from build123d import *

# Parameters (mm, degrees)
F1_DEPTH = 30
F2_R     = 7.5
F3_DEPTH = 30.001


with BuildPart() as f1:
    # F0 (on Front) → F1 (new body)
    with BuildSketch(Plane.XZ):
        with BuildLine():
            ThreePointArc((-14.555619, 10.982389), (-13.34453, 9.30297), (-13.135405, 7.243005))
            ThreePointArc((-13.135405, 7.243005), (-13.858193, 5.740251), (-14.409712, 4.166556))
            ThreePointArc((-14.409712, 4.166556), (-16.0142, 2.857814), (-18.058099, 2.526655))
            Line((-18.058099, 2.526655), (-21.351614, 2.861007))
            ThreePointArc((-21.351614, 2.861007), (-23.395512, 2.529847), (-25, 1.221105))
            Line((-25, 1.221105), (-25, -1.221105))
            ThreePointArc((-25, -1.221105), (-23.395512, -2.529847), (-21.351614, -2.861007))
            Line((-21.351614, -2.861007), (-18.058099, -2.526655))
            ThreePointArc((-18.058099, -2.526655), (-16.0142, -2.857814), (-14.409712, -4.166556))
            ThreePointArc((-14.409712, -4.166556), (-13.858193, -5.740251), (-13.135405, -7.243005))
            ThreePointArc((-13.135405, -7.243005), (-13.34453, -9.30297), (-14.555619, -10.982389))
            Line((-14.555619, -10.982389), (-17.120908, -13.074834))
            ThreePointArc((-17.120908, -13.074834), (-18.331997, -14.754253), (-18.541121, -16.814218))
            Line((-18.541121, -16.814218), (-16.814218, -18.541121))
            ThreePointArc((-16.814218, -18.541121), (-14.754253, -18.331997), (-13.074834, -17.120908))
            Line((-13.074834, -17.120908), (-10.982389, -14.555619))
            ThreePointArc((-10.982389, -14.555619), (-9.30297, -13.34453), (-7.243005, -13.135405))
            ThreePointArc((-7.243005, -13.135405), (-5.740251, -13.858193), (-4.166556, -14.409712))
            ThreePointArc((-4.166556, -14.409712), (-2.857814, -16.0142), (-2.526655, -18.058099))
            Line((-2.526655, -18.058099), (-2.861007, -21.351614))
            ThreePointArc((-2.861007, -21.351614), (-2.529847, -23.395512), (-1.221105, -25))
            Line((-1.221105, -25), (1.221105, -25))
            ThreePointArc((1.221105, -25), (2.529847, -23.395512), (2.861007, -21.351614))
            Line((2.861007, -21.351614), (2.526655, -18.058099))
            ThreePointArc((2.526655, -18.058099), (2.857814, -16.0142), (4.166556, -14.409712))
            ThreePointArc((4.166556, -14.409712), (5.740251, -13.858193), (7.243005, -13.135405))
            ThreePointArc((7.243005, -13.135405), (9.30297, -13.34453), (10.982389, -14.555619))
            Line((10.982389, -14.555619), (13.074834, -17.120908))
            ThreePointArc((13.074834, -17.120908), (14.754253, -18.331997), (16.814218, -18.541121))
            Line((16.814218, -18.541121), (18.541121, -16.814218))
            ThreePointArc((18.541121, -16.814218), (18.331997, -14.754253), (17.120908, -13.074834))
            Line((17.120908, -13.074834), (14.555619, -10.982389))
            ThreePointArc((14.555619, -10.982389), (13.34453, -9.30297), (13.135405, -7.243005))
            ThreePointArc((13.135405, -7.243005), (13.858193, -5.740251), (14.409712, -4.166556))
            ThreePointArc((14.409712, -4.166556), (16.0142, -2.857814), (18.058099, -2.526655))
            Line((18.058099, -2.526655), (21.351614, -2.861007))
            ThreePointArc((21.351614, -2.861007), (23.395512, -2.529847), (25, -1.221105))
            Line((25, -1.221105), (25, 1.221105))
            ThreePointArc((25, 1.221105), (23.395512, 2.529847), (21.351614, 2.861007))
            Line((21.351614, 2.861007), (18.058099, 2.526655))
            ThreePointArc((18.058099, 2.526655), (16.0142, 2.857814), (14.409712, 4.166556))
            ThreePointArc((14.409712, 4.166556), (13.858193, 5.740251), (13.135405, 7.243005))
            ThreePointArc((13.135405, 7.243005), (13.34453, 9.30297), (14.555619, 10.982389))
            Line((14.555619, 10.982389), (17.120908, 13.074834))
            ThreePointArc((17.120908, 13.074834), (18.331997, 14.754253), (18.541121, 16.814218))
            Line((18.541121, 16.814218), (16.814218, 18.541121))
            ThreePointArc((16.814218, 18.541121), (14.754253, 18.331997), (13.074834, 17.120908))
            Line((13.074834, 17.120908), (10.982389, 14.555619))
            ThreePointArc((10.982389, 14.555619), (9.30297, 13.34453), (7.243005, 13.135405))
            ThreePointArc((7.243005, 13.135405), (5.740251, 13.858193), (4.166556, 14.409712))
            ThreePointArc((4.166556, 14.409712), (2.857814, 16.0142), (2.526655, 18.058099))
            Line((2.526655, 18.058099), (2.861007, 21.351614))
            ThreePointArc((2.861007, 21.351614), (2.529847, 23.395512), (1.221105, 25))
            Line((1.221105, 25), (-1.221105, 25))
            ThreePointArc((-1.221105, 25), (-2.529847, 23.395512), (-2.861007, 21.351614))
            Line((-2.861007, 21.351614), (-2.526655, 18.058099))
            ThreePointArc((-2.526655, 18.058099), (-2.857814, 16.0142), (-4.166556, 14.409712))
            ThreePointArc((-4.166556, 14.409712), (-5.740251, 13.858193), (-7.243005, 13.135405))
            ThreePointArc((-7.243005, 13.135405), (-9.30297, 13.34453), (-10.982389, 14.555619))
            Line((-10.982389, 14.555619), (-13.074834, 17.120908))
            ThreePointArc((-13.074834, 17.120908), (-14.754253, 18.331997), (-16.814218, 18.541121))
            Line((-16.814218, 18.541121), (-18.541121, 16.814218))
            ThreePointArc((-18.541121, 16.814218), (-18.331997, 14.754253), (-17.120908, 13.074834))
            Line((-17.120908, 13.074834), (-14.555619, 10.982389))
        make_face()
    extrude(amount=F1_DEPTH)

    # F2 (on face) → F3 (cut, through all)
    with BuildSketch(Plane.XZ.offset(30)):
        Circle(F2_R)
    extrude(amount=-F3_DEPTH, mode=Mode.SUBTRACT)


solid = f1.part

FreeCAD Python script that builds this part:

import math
import FreeCAD as App
import Part
import Sketcher
Q = App.Units.Quantity

doc = App.newDocument("Part")
body = doc.addObject("PartDesign::Body", "Body")

# Sketch on XZ plane
sketch1 = body.newObject("Sketcher::SketchObject", "Sketch")
sketch1.AttachmentSupport = (doc.getObject("XZ_Plane"), [""])
sketch1.MapMode = "FlatFace"
sketch1.addGeometry(Part.ArcOfCircle(Part.Circle(App.Vector(-17.083916, 7.882755, 0), App.Vector(0, 0, 1), 4.000002), math.radians(-9.203262), math.radians(50.796708)), False)
sketch1.addGeometry(Part.ArcOfCircle(Part.Circle(App.Vector(-0.000037, 0.000015, 0), App.Vector(0, 0, 1), 14.99996), math.radians(151.127162), math.radians(163.872835)), False)
sketch1.addGeometry(Part.ArcOfCircle(Part.Circle(App.Vector(-17.6541, 6.506198, 0), App.Vector(0, 0, 1), 3.999997), math.radians(-95.796748), math.radians(-35.796697)), False)
sketch1.addGeometry(Part.LineSegment(App.Vector(-18.058099, 2.526655, 0), App.Vector(-21.351614, 2.861007, 0)), False)
sketch1.addGeometry(Part.ArcOfCircle(Part.Circle(App.Vector(-21.75561, -1.11854, 0), App.Vector(0, 0, 1), 4.000001), math.radians(84.203303), math.radians(144.20329)), False)
sketch1.addGeometry(Part.LineSegment(App.Vector(-25, 1.221105, 0), App.Vector(-25, -1.221105, 0)), False)
sketch1.addGeometry(Part.ArcOfCircle(Part.Circle(App.Vector(-21.75561, 1.11854, 0), App.Vector(0, 0, 1), 4.000001), math.radians(-144.20329), math.radians(-84.203303)), False)
sketch1.addGeometry(Part.LineSegment(App.Vector(-21.351614, -2.861007, 0), App.Vector(-18.058099, -2.526655, 0)), False)
sketch1.addGeometry(Part.ArcOfCircle(Part.Circle(App.Vector(-17.6541, -6.506198, 0), App.Vector(0, 0, 1), 3.999997), math.radians(35.796697), math.radians(95.796748)), False)
sketch1.addGeometry(Part.ArcOfCircle(Part.Circle(App.Vector(-0.000037, -0.000015, 0), App.Vector(0, 0, 1), 14.99996), math.radians(-163.872835), math.radians(-151.127162)), False)
sketch1.addGeometry(Part.ArcOfCircle(Part.Circle(App.Vector(-17.083916, -7.882755, 0), App.Vector(0, 0, 1), 4.000002), math.radians(-50.796708), math.radians(9.203262)), False)
sketch1.addGeometry(Part.LineSegment(App.Vector(-14.555619, -10.982389, 0), App.Vector(-17.120908, -13.074834, 0)), False)
sketch1.addGeometry(Part.ArcOfCircle(Part.Circle(App.Vector(-14.592615, -16.174466, 0), App.Vector(0, 0, 1), 3.999998), math.radians(129.203278), math.radians(189.203303)), False)
sketch1.addGeometry(Part.LineSegment(App.Vector(-18.541121, -16.814218, 0), App.Vector(-16.814218, -18.541121, 0)), False)
sketch1.addGeometry(Part.ArcOfCircle(Part.Circle(App.Vector(-16.174466, -14.592615, 0), App.Vector(0, 0, 1), 3.999998), math.radians(-99.203303), math.radians(-39.203278)), False)
sketch1.addGeometry(Part.LineSegment(App.Vector(-13.074834, -17.120908, 0), App.Vector(-10.982389, -14.555619, 0)), False)
sketch1.addGeometry(Part.ArcOfCircle(Part.Circle(App.Vector(-7.882755, -17.083916, 0), App.Vector(0, 0, 1), 4.000002), math.radians(80.796738), math.radians(140.796708)), False)
sketch1.addGeometry(Part.ArcOfCircle(Part.Circle(App.Vector(-0.000015, -0.000037, 0), App.Vector(0, 0, 1), 14.99996), math.radians(-118.872838), math.radians(-106.127165)), False)
sketch1.addGeometry(Part.ArcOfCircle(Part.Circle(App.Vector(-6.506198, -17.6541, 0), App.Vector(0, 0, 1), 3.999997), math.radians(-5.796748), math.radians(54.203303)), False)
sketch1.addGeometry(Part.LineSegment(App.Vector(-2.526655, -18.058099, 0), App.Vector(-2.861007, -21.351614, 0)), False)
sketch1.addGeometry(Part.ArcOfCircle(Part.Circle(App.Vector(1.11854, -21.75561, 0), App.Vector(0, 0, 1), 4.000001), math.radians(174.203303), math.radians(234.20329)), False)
sketch1.addGeometry(Part.LineSegment(App.Vector(-1.221105, -25, 0), App.Vector(1.221105, -25, 0)), False)
sketch1.addGeometry(Part.ArcOfCircle(Part.Circle(App.Vector(-1.11854, -21.75561, 0), App.Vector(0, 0, 1), 4.000001), math.radians(-54.20329), math.radians(5.796697)), False)
sketch1.addGeometry(Part.LineSegment(App.Vector(2.861007, -21.351614, 0), App.Vector(2.526655, -18.058099, 0)), False)
sketch1.addGeometry(Part.ArcOfCircle(Part.Circle(App.Vector(6.506198, -17.6541, 0), App.Vector(0, 0, 1), 3.999997), math.radians(125.796697), math.radians(185.796748)), False)
sketch1.addGeometry(Part.ArcOfCircle(Part.Circle(App.Vector(0.000015, -0.000037, 0), App.Vector(0, 0, 1), 14.99996), math.radians(-73.872835), math.radians(-61.127162)), False)
sketch1.addGeometry(Part.ArcOfCircle(Part.Circle(App.Vector(7.882755, -17.083916, 0), App.Vector(0, 0, 1), 4.000002), math.radians(39.203292), math.radians(99.203262)), False)
sketch1.addGeometry(Part.LineSegment(App.Vector(10.982389, -14.555619, 0), App.Vector(13.074834, -17.120908, 0)), False)
sketch1.addGeometry(Part.ArcOfCircle(Part.Circle(App.Vector(16.174466, -14.592615, 0), App.Vector(0, 0, 1), 3.999998), math.radians(-140.796722), math.radians(-80.796697)), False)
sketch1.addGeometry(Part.LineSegment(App.Vector(16.814218, -18.541121, 0), App.Vector(18.541121, -16.814218, 0)), False)
sketch1.addGeometry(Part.ArcOfCircle(Part.Circle(App.Vector(14.592615, -16.174466, 0), App.Vector(0, 0, 1), 3.999998), math.radians(-9.203303), math.radians(50.796722)), False)
sketch1.addGeometry(Part.LineSegment(App.Vector(17.120908, -13.074834, 0), App.Vector(14.555619, -10.982389, 0)), False)
sketch1.addGeometry(Part.ArcOfCircle(Part.Circle(App.Vector(17.083916, -7.882755, 0), App.Vector(0, 0, 1), 4.000002), math.radians(170.796738), math.radians(230.796708)), False)
sketch1.addGeometry(Part.ArcOfCircle(Part.Circle(App.Vector(0.000037, -0.000015, 0), App.Vector(0, 0, 1), 14.99996), math.radians(-28.872838), math.radians(-16.127165)), False)
sketch1.addGeometry(Part.ArcOfCircle(Part.Circle(App.Vector(17.6541, -6.506198, 0), App.Vector(0, 0, 1), 3.999997), math.radians(84.203252), math.radians(144.203303)), False)
sketch1.addGeometry(Part.LineSegment(App.Vector(18.058099, -2.526655, 0), App.Vector(21.351614, -2.861007, 0)), False)
sketch1.addGeometry(Part.ArcOfCircle(Part.Circle(App.Vector(21.75561, 1.11854, 0), App.Vector(0, 0, 1), 4.000001), math.radians(-95.796697), math.radians(-35.79671)), False)
sketch1.addGeometry(Part.LineSegment(App.Vector(25, -1.221105, 0), App.Vector(25, 1.221105, 0)), False)
sketch1.addGeometry(Part.ArcOfCircle(Part.Circle(App.Vector(21.75561, -1.11854, 0), App.Vector(0, 0, 1), 4.000001), math.radians(35.79671), math.radians(95.796697)), False)
sketch1.addGeometry(Part.LineSegment(App.Vector(21.351614, 2.861007, 0), App.Vector(18.058099, 2.526655, 0)), False)
sketch1.addGeometry(Part.ArcOfCircle(Part.Circle(App.Vector(17.6541, 6.506198, 0), App.Vector(0, 0, 1), 3.999997), math.radians(-144.203303), math.radians(-84.203252)), False)
sketch1.addGeometry(Part.ArcOfCircle(Part.Circle(App.Vector(0.000037, 0.000015, 0), App.Vector(0, 0, 1), 14.99996), math.radians(16.127165), math.radians(28.872838)), False)
sketch1.addGeometry(Part.ArcOfCircle(Part.Circle(App.Vector(17.083916, 7.882755, 0), App.Vector(0, 0, 1), 4.000002), math.radians(129.203292), math.radians(189.203262)), False)
sketch1.addGeometry(Part.LineSegment(App.Vector(14.555619, 10.982389, 0), App.Vector(17.120908, 13.074834, 0)), False)
sketch1.addGeometry(Part.ArcOfCircle(Part.Circle(App.Vector(14.592615, 16.174466, 0), App.Vector(0, 0, 1), 3.999998), math.radians(-50.796722), math.radians(9.203303)), False)
sketch1.addGeometry(Part.LineSegment(App.Vector(18.541121, 16.814218, 0), App.Vector(16.814218, 18.541121, 0)), False)
sketch1.addGeometry(Part.ArcOfCircle(Part.Circle(App.Vector(16.174466, 14.592615, 0), App.Vector(0, 0, 1), 3.999998), math.radians(80.796697), math.radians(140.796722)), False)
sketch1.addGeometry(Part.LineSegment(App.Vector(13.074834, 17.120908, 0), App.Vector(10.982389, 14.555619, 0)), False)
sketch1.addGeometry(Part.ArcOfCircle(Part.Circle(App.Vector(7.882755, 17.083916, 0), App.Vector(0, 0, 1), 4.000002), math.radians(-99.203262), math.radians(-39.203292)), False)
sketch1.addGeometry(Part.ArcOfCircle(Part.Circle(App.Vector(0.000015, 0.000037, 0), App.Vector(0, 0, 1), 14.99996), math.radians(61.127162), math.radians(73.872835)), False)
sketch1.addGeometry(Part.ArcOfCircle(Part.Circle(App.Vector(6.506198, 17.6541, 0), App.Vector(0, 0, 1), 3.999997), math.radians(174.203252), math.radians(234.203303)), False)
sketch1.addGeometry(Part.LineSegment(App.Vector(2.526655, 18.058099, 0), App.Vector(2.861007, 21.351614, 0)), False)
sketch1.addGeometry(Part.ArcOfCircle(Part.Circle(App.Vector(-1.11854, 21.75561, 0), App.Vector(0, 0, 1), 4.000001), math.radians(-5.796697), math.radians(54.20329)), False)
sketch1.addGeometry(Part.LineSegment(App.Vector(1.221105, 25, 0), App.Vector(-1.221105, 25, 0)), False)
sketch1.addGeometry(Part.ArcOfCircle(Part.Circle(App.Vector(1.11854, 21.75561, 0), App.Vector(0, 0, 1), 4.000001), math.radians(125.79671), math.radians(185.796697)), False)
sketch1.addGeometry(Part.LineSegment(App.Vector(-2.861007, 21.351614, 0), App.Vector(-2.526655, 18.058099, 0)), False)
sketch1.addGeometry(Part.ArcOfCircle(Part.Circle(App.Vector(-6.506198, 17.6541, 0), App.Vector(0, 0, 1), 3.999997), math.radians(-54.203303), math.radians(5.796748)), False)
sketch1.addGeometry(Part.ArcOfCircle(Part.Circle(App.Vector(-0.000015, 0.000037, 0), App.Vector(0, 0, 1), 14.99996), math.radians(106.127165), math.radians(118.872838)), False)
sketch1.addGeometry(Part.ArcOfCircle(Part.Circle(App.Vector(-7.882755, 17.083916, 0), App.Vector(0, 0, 1), 4.000002), math.radians(-140.796708), math.radians(-80.796738)), False)
sketch1.addGeometry(Part.LineSegment(App.Vector(-10.982389, 14.555619, 0), App.Vector(-13.074834, 17.120908, 0)), False)
sketch1.addGeometry(Part.ArcOfCircle(Part.Circle(App.Vector(-16.174466, 14.592615, 0), App.Vector(0, 0, 1), 3.999998), math.radians(39.203278), math.radians(99.203303)), False)
sketch1.addGeometry(Part.LineSegment(App.Vector(-16.814218, 18.541121, 0), App.Vector(-18.541121, 16.814218, 0)), False)
sketch1.addGeometry(Part.ArcOfCircle(Part.Circle(App.Vector(-14.592615, 16.174466, 0), App.Vector(0, 0, 1), 3.999998), math.radians(170.796697), math.radians(230.796722)), False)
sketch1.addGeometry(Part.LineSegment(App.Vector(-17.120908, 13.074834, 0), App.Vector(-14.555619, 10.982389, 0)), False)
sketch1.addConstraint(Sketcher.Constraint("Coincident", 0, 1, 1, 1))
sketch1.addConstraint(Sketcher.Constraint("Coincident", 1, 2, 2, 2))
sketch1.addConstraint(Sketcher.Constraint("Coincident", 2, 1, 3, 1))
sketch1.addConstraint(Sketcher.Constraint("Coincident", 3, 2, 4, 1))
sketch1.addConstraint(Sketcher.Constraint("Coincident", 4, 2, 5, 1))
sketch1.addConstraint(Sketcher.Constraint("Coincident", 5, 2, 6, 1))
sketch1.addConstraint(Sketcher.Constraint("Coincident", 6, 2, 7, 1))
sketch1.addConstraint(Sketcher.Constraint("Coincident", 7, 2, 8, 2))
sketch1.addConstraint(Sketcher.Constraint("Coincident", 8, 1, 9, 1))
sketch1.addConstraint(Sketcher.Constraint("Coincident", 9, 2, 10, 2))
sketch1.addConstraint(Sketcher.Constraint("Coincident", 10, 1, 11, 1))
sketch1.addConstraint(Sketcher.Constraint("Coincident", 11, 2, 12, 1))
sketch1.addConstraint(Sketcher.Constraint("Coincident", 12, 2, 13, 1))
sketch1.addConstraint(Sketcher.Constraint("Coincident", 13, 2, 14, 1))
sketch1.addConstraint(Sketcher.Constraint("Coincident", 14, 2, 15, 1))
sketch1.addConstraint(Sketcher.Constraint("Coincident", 15, 2, 16, 2))
sketch1.addConstraint(Sketcher.Constraint("Coincident", 16, 1, 17, 1))
sketch1.addConstraint(Sketcher.Constraint("Coincident", 17, 2, 18, 2))
sketch1.addConstraint(Sketcher.Constraint("Coincident", 18, 1, 19, 1))
sketch1.addConstraint(Sketcher.Constraint("Coincident", 19, 2, 20, 1))
sketch1.addConstraint(Sketcher.Constraint("Coincident", 20, 2, 21, 1))
sketch1.addConstraint(Sketcher.Constraint("Coincident", 21, 2, 22, 1))
sketch1.addConstraint(Sketcher.Constraint("Coincident", 22, 2, 23, 1))
sketch1.addConstraint(Sketcher.Constraint("Coincident", 23, 2, 24, 2))
sketch1.addConstraint(Sketcher.Constraint("Coincident", 24, 1, 25, 1))
sketch1.addConstraint(Sketcher.Constraint("Coincident", 25, 2, 26, 2))
sketch1.addConstraint(Sketcher.Constraint("Coincident", 26, 1, 27, 1))
sketch1.addConstraint(Sketcher.Constraint("Coincident", 27, 2, 28, 1))
sketch1.addConstraint(Sketcher.Constraint("Coincident", 28, 2, 29, 1))
sketch1.addConstraint(Sketcher.Constraint("Coincident", 29, 2, 30, 1))
sketch1.addConstraint(Sketcher.Constraint("Coincident", 30, 2, 31, 1))
sketch1.addConstraint(Sketcher.Constraint("Coincident", 31, 2, 32, 2))
sketch1.addConstraint(Sketcher.Constraint("Coincident", 32, 1, 33, 1))
sketch1.addConstraint(Sketcher.Constraint("Coincident", 33, 2, 34, 2))
sketch1.addConstraint(Sketcher.Constraint("Coincident", 34, 1, 35, 1))
sketch1.addConstraint(Sketcher.Constraint("Coincident", 35, 2, 36, 1))
sketch1.addConstraint(Sketcher.Constraint("Coincident", 36, 2, 37, 1))
sketch1.addConstraint(Sketcher.Constraint("Coincident", 37, 2, 38, 1))
sketch1.addConstraint(Sketcher.Constraint("Coincident", 38, 2, 39, 1))
sketch1.addConstraint(Sketcher.Constraint("Coincident", 39, 2, 40, 2))
sketch1.addConstraint(Sketcher.Constraint("Coincident", 40, 1, 41, 1))
sketch1.addConstraint(Sketcher.Constraint("Coincident", 41, 2, 42, 2))
sketch1.addConstraint(Sketcher.Constraint("Coincident", 42, 1, 43, 1))
sketch1.addConstraint(Sketcher.Constraint("Coincident", 43, 2, 44, 1))
sketch1.addConstraint(Sketcher.Constraint("Coincident", 44, 2, 45, 1))
sketch1.addConstraint(Sketcher.Constraint("Coincident", 45, 2, 46, 1))
sketch1.addConstraint(Sketcher.Constraint("Coincident", 46, 2, 47, 1))
sketch1.addConstraint(Sketcher.Constraint("Coincident", 47, 2, 48, 2))
sketch1.addConstraint(Sketcher.Constraint("Coincident", 48, 1, 49, 1))
sketch1.addConstraint(Sketcher.Constraint("Coincident", 49, 2, 50, 2))
sketch1.addConstraint(Sketcher.Constraint("Coincident", 50, 1, 51, 1))
sketch1.addConstraint(Sketcher.Constraint("Coincident", 51, 2, 52, 1))
sketch1.addConstraint(Sketcher.Constraint("Coincident", 52, 2, 53, 1))
sketch1.addConstraint(Sketcher.Constraint("Coincident", 53, 2, 54, 1))
sketch1.addConstraint(Sketcher.Constraint("Coincident", 54, 2, 55, 1))
sketch1.addConstraint(Sketcher.Constraint("Coincident", 55, 2, 56, 2))
sketch1.addConstraint(Sketcher.Constraint("Coincident", 56, 1, 57, 1))
sketch1.addConstraint(Sketcher.Constraint("Coincident", 57, 2, 58, 2))
sketch1.addConstraint(Sketcher.Constraint("Coincident", 58, 1, 59, 1))
sketch1.addConstraint(Sketcher.Constraint("Coincident", 59, 2, 60, 1))
sketch1.addConstraint(Sketcher.Constraint("Coincident", 60, 2, 61, 1))
sketch1.addConstraint(Sketcher.Constraint("Coincident", 61, 2, 62, 1))
sketch1.addConstraint(Sketcher.Constraint("Coincident", 62, 2, 63, 1))
sketch1.addConstraint(Sketcher.Constraint("Coincident", 63, 2, 0, 2))
sketch1.addConstraint(Sketcher.Constraint("Vertical", 5))
sketch1.addConstraint(Sketcher.Constraint("Horizontal", 21))
sketch1.addConstraint(Sketcher.Constraint("Vertical", 37))
sketch1.addConstraint(Sketcher.Constraint("Horizontal", 53))
sketch1.addConstraint(Sketcher.Constraint("Radius", 0, Q("4.000002 mm")))
sketch1.addConstraint(Sketcher.Constraint("Radius", 4, Q("4.000001 mm")))
sketch1.addConstraint(Sketcher.Constraint("Radius", 6, Q("4.000001 mm")))
sketch1.addConstraint(Sketcher.Constraint("Radius", 10, Q("4.000002 mm")))
sketch1.addConstraint(Sketcher.Constraint("Radius", 12, Q("3.999998 mm")))
sketch1.addConstraint(Sketcher.Constraint("Radius", 14, Q("3.999998 mm")))
sketch1.addConstraint(Sketcher.Constraint("Radius", 16, Q("4.000002 mm")))
sketch1.addConstraint(Sketcher.Constraint("Radius", 20, Q("4.000001 mm")))
sketch1.addConstraint(Sketcher.Constraint("Radius", 22, Q("4.000001 mm")))
sketch1.addConstraint(Sketcher.Constraint("Radius", 26, Q("4.000002 mm")))
sketch1.addConstraint(Sketcher.Constraint("Radius", 28, Q("3.999998 mm")))
sketch1.addConstraint(Sketcher.Constraint("Radius", 30, Q("3.999998 mm")))
sketch1.addConstraint(Sketcher.Constraint("Radius", 32, Q("4.000002 mm")))
sketch1.addConstraint(Sketcher.Constraint("Radius", 36, Q("4.000001 mm")))
sketch1.addConstraint(Sketcher.Constraint("Radius", 38, Q("4.000001 mm")))
sketch1.addConstraint(Sketcher.Constraint("Radius", 42, Q("4.000002 mm")))
sketch1.addConstraint(Sketcher.Constraint("Radius", 44, Q("3.999998 mm")))
sketch1.addConstraint(Sketcher.Constraint("Radius", 46, Q("3.999998 mm")))
sketch1.addConstraint(Sketcher.Constraint("Radius", 48, Q("4.000002 mm")))
sketch1.addConstraint(Sketcher.Constraint("Radius", 52, Q("4.000001 mm")))
sketch1.addConstraint(Sketcher.Constraint("Radius", 54, Q("4.000001 mm")))
sketch1.addConstraint(Sketcher.Constraint("Radius", 58, Q("4.000002 mm")))
sketch1.addConstraint(Sketcher.Constraint("Radius", 60, Q("3.999998 mm")))
sketch1.addConstraint(Sketcher.Constraint("Radius", 62, Q("3.999998 mm")))
sketch1.addConstraint(Sketcher.Constraint("DistanceX", 4, 2, -1, 1, Q("25 mm")))
sketch1.addConstraint(Sketcher.Constraint("DistanceY", 20, 2, -1, 1, Q("25 mm")))
sketch1.addConstraint(Sketcher.Constraint("DistanceX", -1, 1, 36, 2, Q("25 mm")))
sketch1.addConstraint(Sketcher.Constraint("DistanceY", -1, 1, 52, 2, Q("25 mm")))
sketch1.addConstraint(Sketcher.Constraint("Radius", 1, Q("14.99996 mm")))
sketch1.addConstraint(Sketcher.Constraint("Radius", 9, Q("14.99996 mm")))
sketch1.addConstraint(Sketcher.Constraint("Radius", 17, Q("14.99996 mm")))
sketch1.addConstraint(Sketcher.Constraint("Radius", 25, Q("14.99996 mm")))
sketch1.addConstraint(Sketcher.Constraint("Radius", 33, Q("14.99996 mm")))
sketch1.addConstraint(Sketcher.Constraint("Radius", 41, Q("14.99996 mm")))
sketch1.addConstraint(Sketcher.Constraint("Radius", 49, Q("14.99996 mm")))
sketch1.addConstraint(Sketcher.Constraint("Radius", 57, Q("14.99996 mm")))
sketch1.addConstraint(Sketcher.Constraint("Radius", 2, Q("3.999997 mm")))
sketch1.addConstraint(Sketcher.Constraint("Radius", 8, Q("3.999997 mm")))
sketch1.addConstraint(Sketcher.Constraint("Radius", 18, Q("3.999997 mm")))
sketch1.addConstraint(Sketcher.Constraint("Radius", 24, Q("3.999997 mm")))
sketch1.addConstraint(Sketcher.Constraint("Radius", 34, Q("3.999997 mm")))
sketch1.addConstraint(Sketcher.Constraint("Radius", 40, Q("3.999997 mm")))
sketch1.addConstraint(Sketcher.Constraint("Radius", 50, Q("3.999997 mm")))
sketch1.addConstraint(Sketcher.Constraint("Radius", 56, Q("3.999997 mm")))
sketch1.addConstraint(Sketcher.Constraint("DistanceX", 21, 1, 21, 2, Q("2.44221 mm")))
sketch1.addConstraint(Sketcher.Constraint("DistanceX", 53, 2, 53, 1, Q("2.44221 mm")))
sketch1.addConstraint(Sketcher.Constraint("DistanceY", 5, 2, 5, 1, Q("2.44221 mm")))
sketch1.addConstraint(Sketcher.Constraint("DistanceY", 37, 1, 37, 2, Q("2.44221 mm")))
sketch1.addConstraint(Sketcher.Constraint("DistanceX", 2, 3, -1, 1, Q("17.6541 mm")))
sketch1.addConstraint(Sketcher.Constraint("DistanceY", -1, 1, 2, 3, Q("6.506198 mm")))
sketch1.addConstraint(Sketcher.Constraint("DistanceX", 8, 3, -1, 1, Q("17.6541 mm")))
sketch1.addConstraint(Sketcher.Constraint("DistanceY", 8, 3, -1, 1, Q("6.506198 mm")))
sketch1.addConstraint(Sketcher.Constraint("DistanceX", 18, 3, -1, 1, Q("6.506198 mm")))
sketch1.addConstraint(Sketcher.Constraint("DistanceY", 18, 3, -1, 1, Q("17.6541 mm")))
sketch1.addConstraint(Sketcher.Constraint("DistanceX", -1, 1, 24, 3, Q("6.506198 mm")))
sketch1.addConstraint(Sketcher.Constraint("DistanceY", 24, 3, -1, 1, Q("17.6541 mm")))
sketch1.addConstraint(Sketcher.Constraint("DistanceX", -1, 1, 34, 3, Q("17.6541 mm")))
sketch1.addConstraint(Sketcher.Constraint("DistanceY", 34, 3, -1, 1, Q("6.506198 mm")))
sketch1.addConstraint(Sketcher.Constraint("DistanceX", -1, 1, 40, 3, Q("17.6541 mm")))
sketch1.addConstraint(Sketcher.Constraint("DistanceY", -1, 1, 40, 3, Q("6.506198 mm")))
sketch1.addConstraint(Sketcher.Constraint("DistanceX", -1, 1, 50, 3, Q("6.506198 mm")))
sketch1.addConstraint(Sketcher.Constraint("DistanceY", -1, 1, 50, 3, Q("17.6541 mm")))
sketch1.addConstraint(Sketcher.Constraint("DistanceX", 56, 3, -1, 1, Q("6.506198 mm")))
sketch1.addConstraint(Sketcher.Constraint("DistanceY", -1, 1, 56, 3, Q("17.6541 mm")))
sketch1.addConstraint(Sketcher.Constraint("DistanceX", 2, 1, -1, 1, Q("18.058099 mm")))
sketch1.addConstraint(Sketcher.Constraint("DistanceX", 7, 2, -1, 1, Q("18.058099 mm")))
sketch1.addConstraint(Sketcher.Constraint("DistanceY", 18, 1, -1, 1, Q("18.058099 mm")))
sketch1.addConstraint(Sketcher.Constraint("DistanceY", 23, 2, -1, 1, Q("18.058099 mm")))
sketch1.addConstraint(Sketcher.Constraint("DistanceX", -1, 1, 34, 1, Q("18.058099 mm")))
sketch1.addConstraint(Sketcher.Constraint("DistanceX", -1, 1, 39, 2, Q("18.058099 mm")))
sketch1.addConstraint(Sketcher.Constraint("DistanceY", -1, 1, 50, 1, Q("18.058099 mm")))
sketch1.addConstraint(Sketcher.Constraint("DistanceY", -1, 1, 55, 2, Q("18.058099 mm")))
sketch1.addConstraint(Sketcher.Constraint("Distance", 13, Q("2.44221 mm")))
sketch1.addConstraint(Sketcher.Constraint("Distance", 29, Q("2.44221 mm")))
sketch1.addConstraint(Sketcher.Constraint("Distance", 45, Q("2.44221 mm")))
sketch1.addConstraint(Sketcher.Constraint("Distance", 61, Q("2.44221 mm")))
sketch1.addConstraint(Sketcher.Constraint("DistanceX", 4, 3, -1, 1, Q("21.75561 mm")))
sketch1.addConstraint(Sketcher.Constraint("DistanceY", 4, 3, -1, 1, Q("1.11854 mm")))
sketch1.addConstraint(Sketcher.Constraint("DistanceX", 6, 3, -1, 1, Q("21.75561 mm")))
sketch1.addConstraint(Sketcher.Constraint("DistanceX", -1, 1, 20, 3, Q("1.11854 mm")))
sketch1.addConstraint(Sketcher.Constraint("DistanceY", 20, 3, -1, 1, Q("21.75561 mm")))
sketch1.addConstraint(Sketcher.Constraint("DistanceX", 22, 3, -1, 1, Q("1.11854 mm")))
sketch1.addConstraint(Sketcher.Constraint("DistanceX", -1, 1, 36, 3, Q("21.75561 mm")))
sketch1.addConstraint(Sketcher.Constraint("DistanceY", -1, 1, 36, 3, Q("1.11854 mm")))
sketch1.addConstraint(Sketcher.Constraint("DistanceX", -1, 1, 38, 3, Q("21.75561 mm")))
sketch1.addConstraint(Sketcher.Constraint("DistanceX", 52, 3, -1, 1, Q("1.11854 mm")))
sketch1.addConstraint(Sketcher.Constraint("DistanceY", -1, 1, 52, 3, Q("21.75561 mm")))
sketch1.addConstraint(Sketcher.Constraint("DistanceX", -1, 1, 54, 3, Q("1.11854 mm")))
sketch1.addConstraint(Sketcher.Constraint("DistanceX", 8, 1, -1, 1, Q("14.409712 mm")))
sketch1.addConstraint(Sketcher.Constraint("DistanceX", 10, 1, -1, 1, Q("14.555619 mm")))
sketch1.addConstraint(Sketcher.Constraint("DistanceY", 10, 1, -1, 1, Q("10.982389 mm")))
sketch1.addConstraint(Sketcher.Constraint("DistanceX", 11, 2, -1, 1, Q("17.120908 mm")))
sketch1.addConstraint(Sketcher.Constraint("DistanceX", 12, 2, -1, 1, Q("18.541121 mm")))
sketch1.addConstraint(Sketcher.Constraint("DistanceX", 13, 2, -1, 1, Q("16.814218 mm")))
sketch1.addConstraint(Sketcher.Constraint("DistanceY", 13, 2, -1, 1, Q("18.541121 mm")))
sketch1.addConstraint(Sketcher.Constraint("DistanceY", 14, 2, -1, 1, Q("17.120908 mm")))
sketch1.addConstraint(Sketcher.Constraint("DistanceX", 15, 2, -1, 1, Q("10.982389 mm")))
sketch1.addConstraint(Sketcher.Constraint("DistanceY", 15, 2, -1, 1, Q("14.555619 mm")))
sketch1.addConstraint(Sketcher.Constraint("DistanceY", 24, 1, -1, 1, Q("14.409712 mm")))
sketch1.addConstraint(Sketcher.Constraint("DistanceX", -1, 1, 26, 1, Q("10.982389 mm")))
sketch1.addConstraint(Sketcher.Constraint("DistanceY", 26, 1, -1, 1, Q("14.555619 mm")))
sketch1.addConstraint(Sketcher.Constraint("DistanceY", 27, 2, -1, 1, Q("17.120908 mm")))
sketch1.addConstraint(Sketcher.Constraint("DistanceY", 28, 2, -1, 1, Q("18.541121 mm")))
sketch1.addConstraint(Sketcher.Constraint("DistanceX", -1, 1, 29, 2, Q("18.541121 mm")))
sketch1.addConstraint(Sketcher.Constraint("DistanceY", 29, 2, -1, 1, Q("16.814218 mm")))
sketch1.addConstraint(Sketcher.Constraint("DistanceX", -1, 1, 30, 2, Q("17.120908 mm")))
sketch1.addConstraint(Sketcher.Constraint("DistanceX", -1, 1, 31, 2, Q("14.555619 mm")))
sketch1.addConstraint(Sketcher.Constraint("DistanceY", 31, 2, -1, 1, Q("10.982389 mm")))
sketch1.addConstraint(Sketcher.Constraint("DistanceX", -1, 1, 40, 1, Q("14.409712 mm")))
sketch1.addConstraint(Sketcher.Constraint("DistanceX", -1, 1, 42, 1, Q("14.555619 mm")))
sketch1.addConstraint(Sketcher.Constraint("DistanceY", -1, 1, 42, 1, Q("10.982389 mm")))
sketch1.addConstraint(Sketcher.Constraint("DistanceX", -1, 1, 43, 2, Q("17.120908 mm")))
sketch1.addConstraint(Sketcher.Constraint("DistanceX", -1, 1, 44, 2, Q("18.541121 mm")))
sketch1.addConstraint(Sketcher.Constraint("DistanceX", -1, 1, 45, 2, Q("16.814218 mm")))
sketch1.addConstraint(Sketcher.Constraint("DistanceY", -1, 1, 45, 2, Q("18.541121 mm")))
sketch1.addConstraint(Sketcher.Constraint("DistanceY", -1, 1, 46, 2, Q("17.120908 mm")))
sketch1.addConstraint(Sketcher.Constraint("DistanceX", -1, 1, 47, 2, Q("10.982389 mm")))
sketch1.addConstraint(Sketcher.Constraint("DistanceY", -1, 1, 47, 2, Q("14.555619 mm")))
sketch1.addConstraint(Sketcher.Constraint("DistanceY", -1, 1, 56, 1, Q("14.409712 mm")))
sketch1.addConstraint(Sketcher.Constraint("DistanceX", 58, 1, -1, 1, Q("10.982389 mm")))
sketch1.addConstraint(Sketcher.Constraint("DistanceY", -1, 1, 58, 1, Q("14.555619 mm")))
sketch1.addConstraint(Sketcher.Constraint("DistanceY", -1, 1, 59, 2, Q("17.120908 mm")))
sketch1.addConstraint(Sketcher.Constraint("DistanceY", -1, 1, 60, 2, Q("18.541121 mm")))
sketch1.addConstraint(Sketcher.Constraint("DistanceX", 61, 2, -1, 1, Q("18.541121 mm")))
sketch1.addConstraint(Sketcher.Constraint("DistanceY", -1, 1, 61, 2, Q("16.814218 mm")))
sketch1.addConstraint(Sketcher.Constraint("DistanceX", 62, 2, -1, 1, Q("17.120908 mm")))
sketch1.addConstraint(Sketcher.Constraint("DistanceX", 63, 2, -1, 1, Q("14.555619 mm")))
sketch1.addConstraint(Sketcher.Constraint("DistanceY", -1, 1, 63, 2, Q("10.982389 mm")))
sketch1.addConstraint(Sketcher.Constraint("Distance", 3, Q("3.310443 mm")))
sketch1.addConstraint(Sketcher.Constraint("Distance", 7, Q("3.310443 mm")))
sketch1.addConstraint(Sketcher.Constraint("Distance", 11, Q("3.310443 mm")))
sketch1.addConstraint(Sketcher.Constraint("Distance", 15, Q("3.310443 mm")))
sketch1.addConstraint(Sketcher.Constraint("Distance", 19, Q("3.310443 mm")))
sketch1.addConstraint(Sketcher.Constraint("Distance", 23, Q("3.310443 mm")))
sketch1.addConstraint(Sketcher.Constraint("Distance", 27, Q("3.310443 mm")))
sketch1.addConstraint(Sketcher.Constraint("Distance", 31, Q("3.310443 mm")))
sketch1.addConstraint(Sketcher.Constraint("Distance", 35, Q("3.310443 mm")))
sketch1.addConstraint(Sketcher.Constraint("Distance", 39, Q("3.310443 mm")))
sketch1.addConstraint(Sketcher.Constraint("Distance", 43, Q("3.310443 mm")))
sketch1.addConstraint(Sketcher.Constraint("Distance", 47, Q("3.310443 mm")))
sketch1.addConstraint(Sketcher.Constraint("Distance", 51, Q("3.310443 mm")))
sketch1.addConstraint(Sketcher.Constraint("Distance", 55, Q("3.310443 mm")))
sketch1.addConstraint(Sketcher.Constraint("Distance", 59, Q("3.310443 mm")))
sketch1.addConstraint(Sketcher.Constraint("Distance", 63, Q("3.310443 mm")))
sketch1.addConstraint(Sketcher.Constraint("DistanceX", 0, 3, -1, 1, Q("17.083916 mm")))
sketch1.addConstraint(Sketcher.Constraint("DistanceX", 10, 3, -1, 1, Q("17.083916 mm")))
sketch1.addConstraint(Sketcher.Constraint("DistanceX", 16, 3, -1, 1, Q("7.882755 mm")))
sketch1.addConstraint(Sketcher.Constraint("DistanceX", -1, 1, 26, 3, Q("7.882755 mm")))
sketch1.addConstraint(Sketcher.Constraint("DistanceX", -1, 1, 32, 3, Q("17.083916 mm")))
sketch1.addConstraint(Sketcher.Constraint("DistanceX", -1, 1, 42, 3, Q("17.083916 mm")))
sketch1.addConstraint(Sketcher.Constraint("DistanceX", -1, 1, 48, 3, Q("7.882755 mm")))
sketch1.addConstraint(Sketcher.Constraint("DistanceX", 58, 3, -1, 1, Q("7.882755 mm")))
sketch1.addConstraint(Sketcher.Constraint("DistanceX", 0, 1, -1, 1, Q("13.135405 mm")))
sketch1.addConstraint(Sketcher.Constraint("DistanceX", 1, 2, -1, 1, Q("14.409712 mm")))
sketch1.addConstraint(Sketcher.Constraint("DistanceX", 9, 2, -1, 1, Q("13.135405 mm")))
sketch1.addConstraint(Sketcher.Constraint("DistanceX", 16, 1, -1, 1, Q("7.243005 mm")))
sketch1.addConstraint(Sketcher.Constraint("DistanceX", 17, 2, -1, 1, Q("4.166556 mm")))
sketch1.addConstraint(Sketcher.Constraint("DistanceX", -1, 1, 25, 2, Q("7.243005 mm")))
sketch1.addConstraint(Sketcher.Constraint("DistanceX", -1, 1, 32, 1, Q("13.135405 mm")))
sketch1.addConstraint(Sketcher.Constraint("DistanceX", -1, 1, 33, 2, Q("14.409712 mm")))
sketch1.addConstraint(Sketcher.Constraint("DistanceX", -1, 1, 41, 2, Q("13.135405 mm")))
sketch1.addConstraint(Sketcher.Constraint("DistanceX", -1, 1, 48, 1, Q("7.243005 mm")))
sketch1.addConstraint(Sketcher.Constraint("DistanceX", -1, 1, 49, 2, Q("4.166556 mm")))
sketch1.addConstraint(Sketcher.Constraint("DistanceX", 57, 2, -1, 1, Q("7.243005 mm")))
pad1 = body.newObject("PartDesign::Pad", "Pad")
pad1.Profile = sketch1
pad1.Length = 30

# Sketch on XZ plane
sketch2 = body.newObject("Sketcher::SketchObject", "Sketch001")
sketch2.AttachmentSupport = (doc.getObject("XZ_Plane"), [""])
sketch2.MapMode = "FlatFace"
sketch2.AttachmentOffset = App.Placement(App.Vector(0, 0, 30), App.Rotation())
sketch2.addGeometry(Part.Circle(App.Vector(0, 0, 0), App.Vector(0, 0, 1), 8), False)
sketch2.addConstraint(Sketcher.Constraint("Coincident", 0, 3, -1, 1))
sketch2.addConstraint(Sketcher.Constraint("Diameter", 0, Q("15 mm")))
pocket1 = body.newObject("PartDesign::Pocket", "Pocket")
pocket1.Profile = sketch2
pocket1.Type = "ThroughAll"

doc.recompute()
